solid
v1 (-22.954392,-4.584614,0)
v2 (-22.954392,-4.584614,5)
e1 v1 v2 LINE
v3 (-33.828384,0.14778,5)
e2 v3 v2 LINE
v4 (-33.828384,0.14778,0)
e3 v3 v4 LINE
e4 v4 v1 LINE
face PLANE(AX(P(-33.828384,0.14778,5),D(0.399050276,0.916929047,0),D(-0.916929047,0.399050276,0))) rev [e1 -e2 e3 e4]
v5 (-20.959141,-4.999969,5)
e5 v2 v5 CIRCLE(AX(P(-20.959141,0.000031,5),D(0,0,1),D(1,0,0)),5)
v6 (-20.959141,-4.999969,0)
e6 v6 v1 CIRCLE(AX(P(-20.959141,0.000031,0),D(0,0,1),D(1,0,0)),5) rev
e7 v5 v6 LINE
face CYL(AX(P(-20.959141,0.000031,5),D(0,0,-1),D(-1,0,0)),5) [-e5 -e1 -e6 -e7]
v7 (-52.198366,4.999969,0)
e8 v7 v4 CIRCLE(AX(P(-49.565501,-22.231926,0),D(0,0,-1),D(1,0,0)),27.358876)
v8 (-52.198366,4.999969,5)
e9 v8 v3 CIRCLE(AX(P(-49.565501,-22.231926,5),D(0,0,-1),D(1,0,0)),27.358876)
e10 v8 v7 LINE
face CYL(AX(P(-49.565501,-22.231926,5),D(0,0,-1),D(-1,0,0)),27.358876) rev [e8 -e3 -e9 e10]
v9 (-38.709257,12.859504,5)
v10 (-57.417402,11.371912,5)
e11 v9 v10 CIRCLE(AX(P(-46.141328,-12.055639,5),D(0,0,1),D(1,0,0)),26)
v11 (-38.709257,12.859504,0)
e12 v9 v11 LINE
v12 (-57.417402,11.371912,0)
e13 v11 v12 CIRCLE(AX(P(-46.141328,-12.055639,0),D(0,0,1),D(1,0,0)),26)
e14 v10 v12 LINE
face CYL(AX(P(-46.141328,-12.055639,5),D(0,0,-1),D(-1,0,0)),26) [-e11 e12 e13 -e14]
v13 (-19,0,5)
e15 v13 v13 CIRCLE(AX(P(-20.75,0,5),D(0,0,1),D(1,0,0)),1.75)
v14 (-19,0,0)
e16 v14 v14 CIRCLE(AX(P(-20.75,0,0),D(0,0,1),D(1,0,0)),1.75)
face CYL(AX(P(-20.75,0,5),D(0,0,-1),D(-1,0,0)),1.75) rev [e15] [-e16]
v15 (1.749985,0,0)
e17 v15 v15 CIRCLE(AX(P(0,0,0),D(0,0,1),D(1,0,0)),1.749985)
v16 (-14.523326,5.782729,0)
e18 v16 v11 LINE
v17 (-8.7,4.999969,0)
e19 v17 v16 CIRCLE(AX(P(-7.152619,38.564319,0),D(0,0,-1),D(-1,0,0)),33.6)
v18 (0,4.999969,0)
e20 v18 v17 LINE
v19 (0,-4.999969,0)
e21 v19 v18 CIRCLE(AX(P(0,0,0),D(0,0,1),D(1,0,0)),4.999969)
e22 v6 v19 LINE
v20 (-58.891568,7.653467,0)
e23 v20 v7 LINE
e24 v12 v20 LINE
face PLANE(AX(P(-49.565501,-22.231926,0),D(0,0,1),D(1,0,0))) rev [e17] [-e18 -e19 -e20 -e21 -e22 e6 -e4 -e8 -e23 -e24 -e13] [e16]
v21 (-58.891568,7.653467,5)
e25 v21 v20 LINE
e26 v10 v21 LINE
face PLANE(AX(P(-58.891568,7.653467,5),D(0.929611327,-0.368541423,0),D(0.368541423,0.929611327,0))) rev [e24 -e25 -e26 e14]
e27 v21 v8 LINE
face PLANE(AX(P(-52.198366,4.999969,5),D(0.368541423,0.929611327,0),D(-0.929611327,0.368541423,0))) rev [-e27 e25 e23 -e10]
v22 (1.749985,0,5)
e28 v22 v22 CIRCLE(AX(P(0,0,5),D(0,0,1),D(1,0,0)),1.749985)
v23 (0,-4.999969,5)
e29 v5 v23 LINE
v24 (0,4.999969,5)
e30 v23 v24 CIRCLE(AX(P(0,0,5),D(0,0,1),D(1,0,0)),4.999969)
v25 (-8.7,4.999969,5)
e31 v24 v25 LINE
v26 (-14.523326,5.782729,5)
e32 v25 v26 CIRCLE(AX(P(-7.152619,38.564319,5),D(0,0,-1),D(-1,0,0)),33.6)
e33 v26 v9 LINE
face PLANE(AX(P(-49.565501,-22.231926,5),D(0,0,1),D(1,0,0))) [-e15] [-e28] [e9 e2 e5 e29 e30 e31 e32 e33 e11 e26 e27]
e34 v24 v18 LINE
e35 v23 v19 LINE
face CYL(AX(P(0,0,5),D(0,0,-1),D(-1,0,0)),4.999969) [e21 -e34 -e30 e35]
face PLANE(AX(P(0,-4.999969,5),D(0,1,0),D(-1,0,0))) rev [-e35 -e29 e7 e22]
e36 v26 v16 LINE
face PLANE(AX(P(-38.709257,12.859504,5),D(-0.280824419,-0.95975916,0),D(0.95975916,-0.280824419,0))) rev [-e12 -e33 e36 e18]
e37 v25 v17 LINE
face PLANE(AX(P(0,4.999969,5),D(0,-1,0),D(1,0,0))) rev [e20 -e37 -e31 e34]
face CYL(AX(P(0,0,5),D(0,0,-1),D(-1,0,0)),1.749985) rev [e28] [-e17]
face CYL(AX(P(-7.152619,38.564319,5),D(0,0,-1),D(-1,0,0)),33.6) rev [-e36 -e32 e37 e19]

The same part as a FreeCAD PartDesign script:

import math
import FreeCAD as App
import Part
import Sketcher
Q = App.Units.Quantity


def edges_at(feature, points):
    """Names of the edges that pass closest to the given points."""
    edges = feature.Shape.Edges
    near = lambda p: min(range(len(edges)), key=lambda i: edges[i].distToShape(Part.Vertex(*p))[0])
    return sorted({f"Edge{near(p) + 1}" for p in points})

doc = App.newDocument("Part")
body = doc.addObject("PartDesign::Body", "Body")

# Sketch on XY plane
sketch1 = doc.addObject("Sketcher::SketchObject", "Sketch")
body.addObject(sketch1)
sketch1.AttachmentSupport = (doc.XY_Plane, [""])
sketch1.MapMode = "FlatFace"
sketch1.addGeometry(Part.LineSegment(App.Vector(-33.8, 0.1, 0), App.Vector(-22, -5, 0)), False)
sketch1.addGeometry(Part.LineSegment(App.Vector(-22, -5, 0), App.Vector(0, -5, 0)), False)
sketch1.addGeometry(Part.ArcOfCircle(Part.Circle(App.Vector(0, 0, 0), App.Vector(0, 0, 1), 5), math.radians(-90), math.radians(90)), False)
sketch1.addGeometry(Part.LineSegment(App.Vector(0, 5, 0), App.Vector(-8.7, 5, 0)), False)
sketch1.addGeometry(Part.ArcOfCircle(Part.Circle(App.Vector(-7.2, 38.6, 0), App.Vector(0, 0, 1), 33.6), math.radians(-102.67), math.radians(-92.64)), False)
sketch1.addGeometry(Part.LineSegment(App.Vector(-14.5, 5.8, 0), App.Vector(-38.7, 12.9, 0)), False)
sketch1.addGeometry(Part.ArcOfCircle(Part.Circle(App.Vector(-46.1, -12.1, 0), App.Vector(0, 0, 1), 26), math.radians(73), math.radians(116)), False)
sketch1.addGeometry(Part.LineSegment(App.Vector(-57.4, 11.4, 0), App.Vector(-58.9, 7.7, 0)), False)
sketch1.addGeometry(Part.LineSegment(App.Vector(-58.9, 7.7, 0), App.Vector(-52.2, 5, 0)), False)
sketch1.addGeometry(Part.ArcOfCircle(Part.Circle(App.Vector(-49.6, -22.2, 0), App.Vector(0, 0, 1), 27.4), math.radians(55), math.radians(96)), False)
sketch1.addGeometry(Part.Circle(App.Vector(-20.8, 0, 0), App.Vector(0, 0, 1), 1.8), False)
sketch1.addGeometry(Part.Circle(App.Vector(0, 0, 0), App.Vector(0, 0, 1), 1.7), False)
sketch1.addConstraint(Sketcher.Constraint("Coincident", 0, 2, 1, 1))
sketch1.addConstraint(Sketcher.Constraint("Tangent", 1, 2, 2, 1))
sketch1.addConstraint(Sketcher.Constraint("Tangent", 2, 2, 3, 1))
sketch1.addConstraint(Sketcher.Constraint("Coincident", 3, 2, 4, 2))
sketch1.addConstraint(Sketcher.Constraint("Coincident", 4, 1, 5, 1))
sketch1.addConstraint(Sketcher.Constraint("Coincident", 5, 2, 6, 1))
sketch1.addConstraint(Sketcher.Constraint("Coincident", 6, 2, 7, 1))
sketch1.addConstraint(Sketcher.Constraint("Coincident", 7, 2, 8, 1))
sketch1.addConstraint(Sketcher.Constraint("Coincident", 8, 2, 9, 2))
sketch1.addConstraint(Sketcher.Constraint("Coincident", 9, 1, 0, 1))
sketch1.addConstraint(Sketcher.Constraint("Horizontal", 1))
sketch1.addConstraint(Sketcher.Constraint("Horizontal", 3))
sketch1.addConstraint(Sketcher.Constraint("Coincident", 2, 3, -1, 1))
sketch1.addConstraint(Sketcher.Constraint("Coincident", 11, 3, -1, 1))
sketch1.addConstraint(Sketcher.Constraint("PointOnObject", 10, 3, -1))
sketch1.addConstraint(Sketcher.Constraint("Perpendicular", 7, 8))
sketch1.addConstraint(Sketcher.Constraint("Horizontal", 3, 2, 8, 2))
sketch1.addConstraint(Sketcher.Constraint("Radius", 6, Q("26 mm")))
sketch1.addConstraint(Sketcher.Constraint("Diameter", 10, Q("3.5 mm")))
sketch1.addConstraint(Sketcher.Constraint("Radius", 4, Q("33.6 mm")))
sketch1.addConstraint(Sketcher.Constraint("DistanceX", 1, 1, 1, 2, Q("21.999999 mm")))
sketch1.addConstraint(Sketcher.Constraint("Distance", 7, Q("4 mm")))
sketch1.addConstraint(Sketcher.Constraint("DistanceX", 3, 2, 3, 1, Q("8.7 mm")))
sketch1.addConstraint(Sketcher.Constraint("Distance", 0, Q("12.9 mm")))
sketch1.addConstraint(Sketcher.Constraint("Distance", 5, Q("25.2 mm")))
sketch1.addConstraint(Sketcher.Constraint("Distance", 8, Q("7.2 mm")))
sketch1.addConstraint(Sketcher.Constraint("Diameter", 11, Q("3.499971 mm")))
sketch1.addConstraint(Sketcher.Constraint("DistanceX", 10, 3, -1, 1, Q("20.75 mm")))
sketch1.addConstraint(Sketcher.Constraint("Radius", 2, Q("4.999969 mm")))
sketch1.addConstraint(Sketcher.Constraint("Radius", 9, Q("27.358876 mm")))
sketch1.addConstraint(Sketcher.Constraint("DistanceX", 9, 3, -1, 1, Q("49.565501 mm")))
sketch1.addConstraint(Sketcher.Constraint("DistanceX", 6, 2, 9, 3, Q("7.851901 mm")))
sketch1.addConstraint(Sketcher.Constraint("DistanceX", 7, 2, 8, 2, Q("6.693202 mm")))
sketch1.addConstraint(Sketcher.Constraint("DistanceX", 4, 3, -1, 1, Q("7.152619 mm")))
sketch1.addConstraint(Sketcher.Constraint("DistanceY", 6, 3, -1, 1, Q("12.055639 mm")))
sketch1.addConstraint(Sketcher.Constraint("DistanceY", -1, 1, 4, 1, Q("5.782729 mm")))
pad1 = doc.addObject("PartDesign::Pad", "Pad")
body.addObject(pad1)
pad1.Profile = sketch1
pad1.Length = 5
doc.recompute()

fillet = doc.addObject("PartDesign::Fillet", "Fillet")
body.addObject(fillet)
fillet.Base = (pad1, edges_at(pad1, [(-22, -5, 2.5)]))
fillet.Radius = 5

doc.recompute()
